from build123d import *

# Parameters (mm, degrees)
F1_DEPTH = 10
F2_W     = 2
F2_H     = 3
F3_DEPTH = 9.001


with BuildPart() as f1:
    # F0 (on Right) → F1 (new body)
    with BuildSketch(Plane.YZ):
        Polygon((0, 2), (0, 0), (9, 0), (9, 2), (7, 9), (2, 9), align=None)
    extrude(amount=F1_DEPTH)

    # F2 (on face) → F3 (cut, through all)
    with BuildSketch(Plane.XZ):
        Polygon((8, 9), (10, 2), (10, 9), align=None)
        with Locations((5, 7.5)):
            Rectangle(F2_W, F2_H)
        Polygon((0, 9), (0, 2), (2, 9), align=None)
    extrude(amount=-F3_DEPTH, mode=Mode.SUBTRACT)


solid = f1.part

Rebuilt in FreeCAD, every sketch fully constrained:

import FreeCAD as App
import Part
import Sketcher
from FreeCAD import Vector

doc = App.newDocument("Part")
body = doc.addObject("PartDesign::Body", "Body")

# Sketch on YZ plane
sketch1 = body.newObject("Sketcher::SketchObject", "Sketch")
sketch1.AttachmentSupport = (doc.getObject("YZ_Plane"), [""])
sketch1.MapMode = "FlatFace"
sketch1.addGeometry([
    Part.LineSegment(Vector(0, 2, 0), Vector(0, 0, 0)),  # 0
    Part.LineSegment(Vector(0, 0, 0), Vector(9, 0, 0)),  # 1
    Part.LineSegment(Vector(9, 0, 0), Vector(9, 2, 0)),  # 2
    Part.LineSegment(Vector(9, 2, 0), Vector(7, 9, 0)),  # 3
    Part.LineSegment(Vector(7, 9, 0), Vector(2, 9, 0)),  # 4
    Part.LineSegment(Vector(2, 9, 0), Vector(0, 2, 0)),  # 5
], False)
sketch1.addConstraint([
    Sketcher.Constraint("Coincident", 0, 2, 1, 1),
    Sketcher.Constraint("Coincident", 1, 2, 2, 1),
    Sketcher.Constraint("Coincident", 2, 2, 3, 1),
    Sketcher.Constraint("Coincident", 3, 2, 4, 1),
    Sketcher.Constraint("Coincident", 4, 2, 5, 1),
    Sketcher.Constraint("Coincident", 5, 2, 0, 1),
    Sketcher.Constraint("Vertical", 0),
    Sketcher.Constraint("Horizontal", 1),
    Sketcher.Constraint("Vertical", 2),
    Sketcher.Constraint("Horizontal", 4),
    Sketcher.Constraint("Coincident", 0, 2, -1, 1),
    Sketcher.Constraint("Horizontal", 2, 2, 5, 2),
    Sketcher.Constraint("Equal", 3, 5),
    Sketcher.Constraint("DistanceX", 1, 1, 1, 2, 9.0),
    Sketcher.Constraint("DistanceX", 4, 2, 4, 1, 5.0),
    Sketcher.Constraint("DistanceY", 0, 2, 0, 1, 2.0),
    Sketcher.Constraint("DistanceY", -1, 1, 3, 2, 9.0),
])
pad1 = body.newObject("PartDesign::Pad", "Pad")
pad1.Profile = sketch1
pad1.Length = 10

# Sketch on XZ plane
sketch2 = body.newObject("Sketcher::SketchObject", "Sketch001")
sketch2.AttachmentSupport = (doc.getObject("XZ_Plane"), [""])
sketch2.MapMode = "FlatFace"
sketch2.addGeometry([
    Part.LineSegment(Vector(8, 9, 0), Vector(10, 2, 0)),  # 0
    Part.LineSegment(Vector(10, 2, 0), Vector(10, 9, 0)),  # 1
    Part.LineSegment(Vector(10, 9, 0), Vector(8, 9, 0)),  # 2
    Part.LineSegment(Vector(4, 9, 0), Vector(4, 6, 0)),  # 3
    Part.LineSegment(Vector(4, 6, 0), Vector(6, 6, 0)),  # 4
    Part.LineSegment(Vector(6, 6, 0), Vector(6, 9, 0)),  # 5
    Part.LineSegment(Vector(6, 9, 0), Vector(4, 9, 0)),  # 6
    Part.LineSegment(Vector(0, 9, 0), Vector(0, 2, 0)),  # 7
    Part.LineSegment(Vector(0, 2, 0), Vector(2, 9, 0)),  # 8
    Part.LineSegment(Vector(2, 9, 0), Vector(0, 9, 0)),  # 9
], False)
sketch2.addConstraint([
    Sketcher.Constraint("Coincident", 0, 2, 1, 1),
    Sketcher.Constraint("Coincident", 1, 2, 2, 1),
    Sketcher.Constraint("Coincident", 2, 2, 0, 1),
    Sketcher.Constraint("Coincident", 3, 2, 4, 1),
    Sketcher.Constraint("Coincident", 4, 2, 5, 1),
    Sketcher.Constraint("Coincident", 5, 2, 6, 1),
    Sketcher.Constraint("Coincident", 6, 2, 3, 1),
    Sketcher.Constraint("Coincident", 7, 2, 8, 1),
    Sketcher.Constraint("Coincident", 8, 2, 9, 1),
    Sketcher.Constraint("Coincident", 9, 2, 7, 1),
    Sketcher.Constraint("Vertical", 1),
    Sketcher.Constraint("Horizontal", 2),
    Sketcher.Constraint("Vertical", 3),
    Sketcher.Constraint("Horizontal", 4),
    Sketcher.Constraint("Vertical", 5),
    Sketcher.Constraint("Horizontal", 6),
    Sketcher.Constraint("Vertical", 7),
    Sketcher.Constraint("Horizontal", 9),
    Sketcher.Constraint("PointOnObject", 7, 2, -2),
    Sketcher.Constraint("Horizontal", 2, 2, 5, 2),
    Sketcher.Constraint("Horizontal", 0, 2, 7, 2),
    Sketcher.Constraint("Horizontal", 6, 2, 8, 2),
    Sketcher.Constraint("Equal", 2, 4),
    Sketcher.Constraint("Equal", 6, 9),
    Sketcher.Constraint("DistanceX", 2, 2, 2, 1, 2.0),
    Sketcher.Constraint("DistanceY", 1, 1, 1, 2, 7.0),
    Sketcher.Constraint("DistanceY", 3, 2, 3, 1, 3.0),
    Sketcher.Constraint("DistanceX", -1, 1, 0, 2, 10.0),
    Sketcher.Constraint("DistanceY", -1, 1, 0, 2, 2.0),
    Sketcher.Constraint("DistanceX", -1, 1, 3, 2, 4.0),
])
pocket1 = body.newObject("PartDesign::Pocket", "Pocket")
pocket1.Profile = sketch2
pocket1.Type = "ThroughAll"

doc.recompute()
